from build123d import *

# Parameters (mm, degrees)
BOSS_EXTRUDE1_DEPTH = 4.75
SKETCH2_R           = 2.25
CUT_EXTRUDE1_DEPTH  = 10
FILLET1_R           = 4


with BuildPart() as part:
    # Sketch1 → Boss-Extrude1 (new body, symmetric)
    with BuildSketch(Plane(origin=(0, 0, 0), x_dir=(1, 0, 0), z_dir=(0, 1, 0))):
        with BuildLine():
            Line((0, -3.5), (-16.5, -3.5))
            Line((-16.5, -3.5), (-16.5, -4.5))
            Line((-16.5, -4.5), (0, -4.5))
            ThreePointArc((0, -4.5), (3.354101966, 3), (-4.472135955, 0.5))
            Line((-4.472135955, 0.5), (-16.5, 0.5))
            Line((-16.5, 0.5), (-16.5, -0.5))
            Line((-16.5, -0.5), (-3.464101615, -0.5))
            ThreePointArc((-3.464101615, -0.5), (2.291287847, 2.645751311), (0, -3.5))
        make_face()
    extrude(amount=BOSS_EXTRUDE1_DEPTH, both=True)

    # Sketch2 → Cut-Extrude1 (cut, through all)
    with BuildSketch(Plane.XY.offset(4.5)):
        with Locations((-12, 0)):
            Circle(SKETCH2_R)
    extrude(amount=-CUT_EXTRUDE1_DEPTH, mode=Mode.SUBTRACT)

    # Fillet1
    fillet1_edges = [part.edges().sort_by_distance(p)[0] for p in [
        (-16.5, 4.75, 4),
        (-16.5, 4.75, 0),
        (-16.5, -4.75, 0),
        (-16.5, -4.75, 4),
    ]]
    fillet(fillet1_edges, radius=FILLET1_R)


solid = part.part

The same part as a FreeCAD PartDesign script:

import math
import FreeCAD as App
import Part
import Sketcher
Q = App.Units.Quantity


def edges_at(feature, points):
    """Names of the edges that pass closest to the given points."""
    edges = feature.Shape.Edges
    near = lambda p: min(range(len(edges)), key=lambda i: edges[i].distToShape(Part.Vertex(*p))[0])
    return sorted({f"Edge{near(p) + 1}" for p in points})

doc = App.newDocument("Part")
body = doc.addObject("PartDesign::Body", "Body")

# Sketch on XZ plane
sketch1 = body.newObject("Sketcher::SketchObject", "Sketch")
sketch1.AttachmentSupport = (doc.getObject("XZ_Plane"), [""])
sketch1.MapMode = "FlatFace"
sketch1.addGeometry([
    Part.LineSegment(App.Vector(0, 3.5, 0), App.Vector(-16.5, 3.5, 0)),  # 0
    Part.LineSegment(App.Vector(-16.5, 3.5, 0), App.Vector(-16.5, 4.5, 0)),  # 1
    Part.LineSegment(App.Vector(-16.5, 4.5, 0), App.Vector(0, 4.5, 0)),  # 2
    Part.ArcOfCircle(Part.Circle(App.Vector(0, 0, 0), App.Vector(0, 0, 1), 4.5), math.radians(-174), math.radians(90)),  # 3
    Part.LineSegment(App.Vector(-4.5, -0.5, 0), App.Vector(-16.5, -0.5, 0)),  # 4
    Part.LineSegment(App.Vector(-16.5, -0.5, 0), App.Vector(-16.5, 0.5, 0)),  # 5
    Part.LineSegment(App.Vector(-16.5, 0.5, 0), App.Vector(-3.5, 0.5, 0)),  # 6
    Part.ArcOfCircle(Part.Circle(App.Vector(0, 0, 0), App.Vector(0, 0, 1), 3.5), math.radians(172), math.radians(450)),  # 7
], False)
sketch1.addConstraint([
    Sketcher.Constraint("Coincident", 0, 2, 1, 1),
    Sketcher.Constraint("Coincident", 1, 2, 2, 1),
    Sketcher.Constraint("Tangent", 2, 2, 3, 2),
    Sketcher.Constraint("Coincident", 3, 1, 4, 1),
    Sketcher.Constraint("Coincident", 4, 2, 5, 1),
    Sketcher.Constraint("Coincident", 5, 2, 6, 1),
    Sketcher.Constraint("Coincident", 6, 2, 7, 1),
    Sketcher.Constraint("Tangent", 7, 2, 0, 1),
    Sketcher.Constraint("Horizontal", 0),
    Sketcher.Constraint("Vertical", 1),
    Sketcher.Constraint("Horizontal", 2),
    Sketcher.Constraint("Horizontal", 4),
    Sketcher.Constraint("Vertical", 5),
    Sketcher.Constraint("Horizontal", 6),
    Sketcher.Constraint("Coincident", 3, 3, -1, 1),
    Sketcher.Constraint("Coincident", 7, 3, -1, 1),
    Sketcher.Constraint("Vertical", 1, 2, 4, 2),
    Sketcher.Constraint("Equal", 1, 5),
    Sketcher.Constraint("Radius", 3, Q("4.5 mm")),
    Sketcher.Constraint("Radius", 7, Q("3.5 mm")),
    Sketcher.Constraint("DistanceX", 0, 2, 0, 1, Q("16.5 mm")),
    Sketcher.Constraint("DistanceY", 3, 1, 2, 2, Q("5 mm")),
])
pad1 = body.newObject("PartDesign::Pad", "Pad")
pad1.Profile = sketch1
pad1.Length = 9.5
pad1.Midplane = True

# Sketch on XY plane
sketch2 = body.newObject("Sketcher::SketchObject", "Sketch001")
sketch2.AttachmentSupport = (doc.getObject("XY_Plane"), [""])
sketch2.MapMode = "FlatFace"
sketch2.AttachmentOffset = App.Placement(App.Vector(0, 0, 4.5), App.Rotation())
sketch2.addGeometry(Part.Circle(App.Vector(-12, 0, 0), App.Vector(0, 0, 1), 2.2), False)
sketch2.addConstraint([
    Sketcher.Constraint("PointOnObject", 0, 3, -1),
    Sketcher.Constraint("Diameter", 0, Q("4.5 mm")),
    Sketcher.Constraint("DistanceX", 0, 3, -1, 1, Q("12 mm")),
])
pocket1 = body.newObject("PartDesign::Pocket", "Pocket")
pocket1.Profile = sketch2
pocket1.Type = "ThroughAll"
doc.recompute()

fillet = body.newObject("PartDesign::Fillet", "Fillet")
fillet.Base = (pocket1, edges_at(pocket1, [
    (-16.5, 4.75, 4),
    (-16.5, 4.75, 0),
    (-16.5, -4.75, 0),
    (-16.5, -4.75, 4),
]))
fillet.Radius = 4

doc.recompute()
